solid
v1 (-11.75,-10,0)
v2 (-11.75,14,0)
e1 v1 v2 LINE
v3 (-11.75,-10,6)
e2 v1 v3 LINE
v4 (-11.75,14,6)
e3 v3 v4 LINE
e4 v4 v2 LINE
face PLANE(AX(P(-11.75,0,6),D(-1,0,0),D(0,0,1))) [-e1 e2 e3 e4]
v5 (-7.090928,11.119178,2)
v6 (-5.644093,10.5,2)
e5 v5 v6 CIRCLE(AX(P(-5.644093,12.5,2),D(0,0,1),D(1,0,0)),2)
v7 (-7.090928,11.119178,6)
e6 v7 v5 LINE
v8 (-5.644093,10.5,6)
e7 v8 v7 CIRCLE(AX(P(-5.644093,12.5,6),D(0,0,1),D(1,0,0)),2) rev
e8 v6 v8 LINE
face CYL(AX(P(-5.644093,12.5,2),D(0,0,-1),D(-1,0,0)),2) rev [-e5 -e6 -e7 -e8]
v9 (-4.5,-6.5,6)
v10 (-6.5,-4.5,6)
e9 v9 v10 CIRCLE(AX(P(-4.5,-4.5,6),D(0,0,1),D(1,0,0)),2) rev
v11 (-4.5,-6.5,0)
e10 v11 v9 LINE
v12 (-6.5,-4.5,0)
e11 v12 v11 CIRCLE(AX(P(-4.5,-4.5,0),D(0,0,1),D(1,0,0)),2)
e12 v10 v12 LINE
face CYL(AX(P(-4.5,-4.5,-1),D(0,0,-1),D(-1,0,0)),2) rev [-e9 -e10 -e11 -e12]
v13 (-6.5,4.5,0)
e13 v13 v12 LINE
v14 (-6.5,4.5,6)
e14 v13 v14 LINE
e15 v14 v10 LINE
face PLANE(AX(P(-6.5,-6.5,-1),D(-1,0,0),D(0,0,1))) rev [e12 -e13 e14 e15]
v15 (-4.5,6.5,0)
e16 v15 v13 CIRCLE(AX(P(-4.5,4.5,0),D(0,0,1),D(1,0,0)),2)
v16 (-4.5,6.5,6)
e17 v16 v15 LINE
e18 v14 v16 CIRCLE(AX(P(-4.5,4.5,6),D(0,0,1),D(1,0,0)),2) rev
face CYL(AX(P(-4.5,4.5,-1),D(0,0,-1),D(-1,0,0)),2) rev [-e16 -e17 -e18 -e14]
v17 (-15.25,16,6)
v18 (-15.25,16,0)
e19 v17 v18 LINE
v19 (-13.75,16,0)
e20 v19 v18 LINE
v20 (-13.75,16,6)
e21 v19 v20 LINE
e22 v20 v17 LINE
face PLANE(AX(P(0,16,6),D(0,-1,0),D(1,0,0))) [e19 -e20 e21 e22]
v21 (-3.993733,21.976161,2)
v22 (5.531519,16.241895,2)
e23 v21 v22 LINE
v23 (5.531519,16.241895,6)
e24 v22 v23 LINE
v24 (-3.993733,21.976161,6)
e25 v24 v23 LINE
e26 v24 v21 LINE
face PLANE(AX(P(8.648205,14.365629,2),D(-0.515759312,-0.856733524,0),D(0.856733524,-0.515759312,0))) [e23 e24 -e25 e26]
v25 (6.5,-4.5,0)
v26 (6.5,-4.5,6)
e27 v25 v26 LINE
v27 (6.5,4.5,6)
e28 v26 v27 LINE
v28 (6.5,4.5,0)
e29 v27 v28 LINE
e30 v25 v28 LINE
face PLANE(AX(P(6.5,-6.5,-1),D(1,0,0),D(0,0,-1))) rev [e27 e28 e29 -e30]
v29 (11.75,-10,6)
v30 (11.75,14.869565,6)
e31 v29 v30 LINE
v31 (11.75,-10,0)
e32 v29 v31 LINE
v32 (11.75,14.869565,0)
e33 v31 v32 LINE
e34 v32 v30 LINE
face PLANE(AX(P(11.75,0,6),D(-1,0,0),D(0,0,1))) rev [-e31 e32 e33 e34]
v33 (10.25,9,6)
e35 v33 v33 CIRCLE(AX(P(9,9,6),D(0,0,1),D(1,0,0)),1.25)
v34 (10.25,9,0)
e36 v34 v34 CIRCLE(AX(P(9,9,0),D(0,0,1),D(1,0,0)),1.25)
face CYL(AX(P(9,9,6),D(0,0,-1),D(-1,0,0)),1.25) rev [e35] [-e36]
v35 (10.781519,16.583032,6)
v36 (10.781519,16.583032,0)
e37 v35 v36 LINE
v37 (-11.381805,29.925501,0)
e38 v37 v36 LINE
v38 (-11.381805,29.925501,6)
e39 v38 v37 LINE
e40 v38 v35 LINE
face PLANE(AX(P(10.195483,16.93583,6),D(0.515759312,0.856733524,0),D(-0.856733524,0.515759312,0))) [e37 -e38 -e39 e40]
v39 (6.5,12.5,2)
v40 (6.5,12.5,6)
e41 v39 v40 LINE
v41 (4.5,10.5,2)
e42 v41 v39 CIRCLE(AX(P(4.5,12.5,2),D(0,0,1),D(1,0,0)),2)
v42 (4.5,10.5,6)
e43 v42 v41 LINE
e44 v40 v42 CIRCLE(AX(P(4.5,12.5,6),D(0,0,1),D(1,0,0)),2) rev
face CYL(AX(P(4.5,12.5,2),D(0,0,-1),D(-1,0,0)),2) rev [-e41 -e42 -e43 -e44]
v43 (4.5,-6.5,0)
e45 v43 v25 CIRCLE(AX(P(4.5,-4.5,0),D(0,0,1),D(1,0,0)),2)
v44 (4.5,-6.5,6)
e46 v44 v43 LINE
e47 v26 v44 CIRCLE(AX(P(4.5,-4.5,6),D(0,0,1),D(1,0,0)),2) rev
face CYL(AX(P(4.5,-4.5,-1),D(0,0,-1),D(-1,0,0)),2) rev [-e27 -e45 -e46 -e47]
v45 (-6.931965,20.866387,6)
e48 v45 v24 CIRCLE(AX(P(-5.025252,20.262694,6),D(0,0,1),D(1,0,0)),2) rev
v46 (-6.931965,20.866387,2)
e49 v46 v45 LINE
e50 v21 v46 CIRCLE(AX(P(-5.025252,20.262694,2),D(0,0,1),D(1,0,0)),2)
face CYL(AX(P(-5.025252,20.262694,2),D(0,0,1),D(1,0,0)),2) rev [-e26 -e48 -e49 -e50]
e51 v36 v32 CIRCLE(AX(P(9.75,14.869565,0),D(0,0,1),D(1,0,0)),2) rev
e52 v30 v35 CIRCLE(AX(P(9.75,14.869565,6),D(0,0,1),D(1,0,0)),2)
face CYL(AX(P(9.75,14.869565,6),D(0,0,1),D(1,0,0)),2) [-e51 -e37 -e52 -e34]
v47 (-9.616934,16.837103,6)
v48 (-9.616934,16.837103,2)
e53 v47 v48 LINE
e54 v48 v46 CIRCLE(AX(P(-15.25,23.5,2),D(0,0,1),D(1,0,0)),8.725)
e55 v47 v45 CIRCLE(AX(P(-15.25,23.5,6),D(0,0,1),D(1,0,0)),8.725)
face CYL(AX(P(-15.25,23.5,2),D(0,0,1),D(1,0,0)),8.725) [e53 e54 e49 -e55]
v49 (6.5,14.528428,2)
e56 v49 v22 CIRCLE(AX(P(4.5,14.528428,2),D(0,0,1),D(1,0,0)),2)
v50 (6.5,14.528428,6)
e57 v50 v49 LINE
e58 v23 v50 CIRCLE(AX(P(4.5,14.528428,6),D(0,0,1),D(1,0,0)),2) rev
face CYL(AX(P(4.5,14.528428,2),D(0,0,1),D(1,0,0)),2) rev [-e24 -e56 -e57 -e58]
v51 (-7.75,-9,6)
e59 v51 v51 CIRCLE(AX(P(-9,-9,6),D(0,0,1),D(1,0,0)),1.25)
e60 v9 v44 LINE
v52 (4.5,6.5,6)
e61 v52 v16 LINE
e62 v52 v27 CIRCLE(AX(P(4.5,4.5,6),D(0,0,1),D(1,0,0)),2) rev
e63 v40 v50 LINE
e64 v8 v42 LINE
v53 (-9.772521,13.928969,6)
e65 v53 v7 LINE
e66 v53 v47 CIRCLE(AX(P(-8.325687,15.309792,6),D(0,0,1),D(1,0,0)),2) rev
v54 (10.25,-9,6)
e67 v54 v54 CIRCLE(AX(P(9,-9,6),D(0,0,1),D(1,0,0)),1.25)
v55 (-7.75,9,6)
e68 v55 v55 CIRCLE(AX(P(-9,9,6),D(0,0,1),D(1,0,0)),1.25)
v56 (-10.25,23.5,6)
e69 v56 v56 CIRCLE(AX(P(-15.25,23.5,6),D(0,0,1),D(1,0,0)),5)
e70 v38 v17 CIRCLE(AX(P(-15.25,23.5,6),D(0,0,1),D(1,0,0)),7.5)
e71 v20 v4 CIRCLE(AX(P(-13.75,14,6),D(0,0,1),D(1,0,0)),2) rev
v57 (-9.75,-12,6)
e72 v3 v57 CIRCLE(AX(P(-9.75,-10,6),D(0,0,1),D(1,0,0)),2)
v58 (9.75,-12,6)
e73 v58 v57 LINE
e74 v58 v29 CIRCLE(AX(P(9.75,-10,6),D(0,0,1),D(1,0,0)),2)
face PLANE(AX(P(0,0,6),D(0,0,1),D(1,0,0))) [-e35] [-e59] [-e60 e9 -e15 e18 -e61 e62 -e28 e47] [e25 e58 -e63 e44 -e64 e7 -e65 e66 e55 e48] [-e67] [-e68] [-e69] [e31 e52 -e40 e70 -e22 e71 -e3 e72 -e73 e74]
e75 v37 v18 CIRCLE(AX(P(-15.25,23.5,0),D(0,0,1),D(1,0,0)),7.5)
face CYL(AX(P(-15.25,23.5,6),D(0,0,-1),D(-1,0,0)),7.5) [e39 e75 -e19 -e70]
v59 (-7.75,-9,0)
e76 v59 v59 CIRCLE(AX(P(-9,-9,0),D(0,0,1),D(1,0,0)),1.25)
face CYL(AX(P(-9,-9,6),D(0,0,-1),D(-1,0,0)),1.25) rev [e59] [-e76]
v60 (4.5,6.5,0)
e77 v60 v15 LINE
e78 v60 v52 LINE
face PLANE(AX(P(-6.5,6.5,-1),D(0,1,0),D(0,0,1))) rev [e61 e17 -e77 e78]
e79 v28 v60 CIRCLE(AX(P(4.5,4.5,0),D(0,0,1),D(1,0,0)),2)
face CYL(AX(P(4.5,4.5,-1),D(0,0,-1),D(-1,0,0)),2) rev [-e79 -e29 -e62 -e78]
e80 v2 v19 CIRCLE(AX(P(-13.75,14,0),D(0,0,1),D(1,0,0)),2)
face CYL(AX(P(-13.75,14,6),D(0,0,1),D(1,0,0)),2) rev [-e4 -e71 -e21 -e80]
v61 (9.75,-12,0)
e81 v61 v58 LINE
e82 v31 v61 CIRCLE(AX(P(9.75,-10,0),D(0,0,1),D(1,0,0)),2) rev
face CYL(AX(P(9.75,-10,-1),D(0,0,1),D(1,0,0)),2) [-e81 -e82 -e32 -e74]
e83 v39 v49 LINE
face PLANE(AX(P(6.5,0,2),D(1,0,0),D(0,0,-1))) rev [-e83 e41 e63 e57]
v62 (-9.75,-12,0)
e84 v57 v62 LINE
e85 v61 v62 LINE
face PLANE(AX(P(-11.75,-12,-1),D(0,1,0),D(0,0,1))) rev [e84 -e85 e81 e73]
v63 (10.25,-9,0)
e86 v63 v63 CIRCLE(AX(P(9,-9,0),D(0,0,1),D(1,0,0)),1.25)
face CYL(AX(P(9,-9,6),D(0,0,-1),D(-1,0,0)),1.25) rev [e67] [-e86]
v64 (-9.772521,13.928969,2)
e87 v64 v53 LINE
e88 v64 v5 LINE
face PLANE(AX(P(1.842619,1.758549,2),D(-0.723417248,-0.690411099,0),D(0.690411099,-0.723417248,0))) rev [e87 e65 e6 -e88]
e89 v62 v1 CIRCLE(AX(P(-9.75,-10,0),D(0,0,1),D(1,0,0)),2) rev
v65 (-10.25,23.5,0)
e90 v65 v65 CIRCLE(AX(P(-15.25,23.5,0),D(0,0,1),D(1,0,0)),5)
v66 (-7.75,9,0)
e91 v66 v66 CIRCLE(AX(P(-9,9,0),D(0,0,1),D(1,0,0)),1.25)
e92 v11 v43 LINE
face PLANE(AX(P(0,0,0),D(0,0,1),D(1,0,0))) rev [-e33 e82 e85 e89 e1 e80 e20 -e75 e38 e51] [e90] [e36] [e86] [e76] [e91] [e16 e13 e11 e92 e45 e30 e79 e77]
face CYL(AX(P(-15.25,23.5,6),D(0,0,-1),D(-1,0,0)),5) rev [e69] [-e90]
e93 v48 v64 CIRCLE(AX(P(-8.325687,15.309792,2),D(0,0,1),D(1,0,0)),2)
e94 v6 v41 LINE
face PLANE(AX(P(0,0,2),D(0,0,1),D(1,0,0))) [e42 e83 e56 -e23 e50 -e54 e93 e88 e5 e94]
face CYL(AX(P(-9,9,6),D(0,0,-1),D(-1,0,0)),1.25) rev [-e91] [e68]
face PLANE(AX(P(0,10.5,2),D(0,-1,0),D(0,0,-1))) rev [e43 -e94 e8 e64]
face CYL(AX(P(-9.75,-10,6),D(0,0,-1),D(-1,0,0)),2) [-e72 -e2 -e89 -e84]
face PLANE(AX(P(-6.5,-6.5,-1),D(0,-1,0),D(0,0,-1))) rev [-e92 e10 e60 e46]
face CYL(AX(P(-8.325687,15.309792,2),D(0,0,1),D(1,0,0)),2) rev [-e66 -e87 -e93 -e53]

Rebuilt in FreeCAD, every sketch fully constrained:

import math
import FreeCAD as App
import Part
import Sketcher

V = App.Vector
Q = App.Units.Quantity


def edges_at(feature, points):
    """Names of the edges that pass closest to the given points."""
    edges = feature.Shape.Edges
    near = lambda p: min(range(len(edges)), key=lambda i: edges[i].distToShape(Part.Vertex(*p))[0])
    return sorted({f"Edge{near(p) + 1}" for p in points})

doc = App.newDocument("Part")
body = doc.addObject("PartDesign::Body", "Body")

# Sketch on XY plane
sketch1 = doc.addObject("Sketcher::SketchObject", "Sketch")
body.addObject(sketch1)
sketch1.AttachmentSupport = (doc.XY_Plane, [""])
sketch1.MapMode = "FlatFace"
sketch1.addGeometry(Part.LineSegment(V(-15.2, 16, 0), V(-11.8, 16, 0)), False)
sketch1.addGeometry(Part.LineSegment(V(-11.8, 16, 0), V(-11.8, -16, 0)), False)
sketch1.addGeometry(Part.LineSegment(V(-11.8, -16, 0), V(11.8, -16, 0)), False)
sketch1.addGeometry(Part.LineSegment(V(11.8, -16, 0), V(11.8, 16, 0)), False)
sketch1.addGeometry(Part.LineSegment(V(11.8, 16, 0), V(-11.4, 29.9, 0)), False)
sketch1.addGeometry(Part.ArcOfCircle(Part.Circle(V(-15.2, 23.5, 0), V(0, 0, 1), 7.5), math.radians(59), math.radians(270)), False)
sketch1.addGeometry(Part.Circle(V(9, 9, 0), V(0, 0, 1), 1.2), False)
sketch1.addGeometry(Part.Circle(V(-9, -9, 0), V(0, 0, 1), 1.2), False)
sketch1.addGeometry(Part.Circle(V(9, -9, 0), V(0, 0, 1), 1.2), False)
sketch1.addGeometry(Part.Circle(V(-9, 9, 0), V(0, 0, 1), 1.2), False)
sketch1.addGeometry(Part.Circle(V(-15.2, 23.5, 0), V(0, 0, 1), 5), False)
sketch1.addConstraint(Sketcher.Constraint("Coincident", 0, 2, 1, 1))
sketch1.addConstraint(Sketcher.Constraint("Coincident", 1, 2, 2, 1))
sketch1.addConstraint(Sketcher.Constraint("Coincident", 2, 2, 3, 1))
sketch1.addConstraint(Sketcher.Constraint("Coincident", 3, 2, 4, 1))
sketch1.addConstraint(Sketcher.Constraint("Tangent", 4, 2, 5, 1))
sketch1.addConstraint(Sketcher.Constraint("Tangent", 5, 2, 0, 1))
sketch1.addConstraint(Sketcher.Constraint("Horizontal", 0))
sketch1.addConstraint(Sketcher.Constraint("Vertical", 1))
sketch1.addConstraint(Sketcher.Constraint("Horizontal", 2))
sketch1.addConstraint(Sketcher.Constraint("Vertical", 3))
sketch1.addConstraint(Sketcher.Constraint("Coincident", 10, 3, 5, 3))
sketch1.addConstraint(Sketcher.Constraint("Equal", 6, 7))
sketch1.addConstraint(Sketcher.Constraint("Equal", 7, 8))
sketch1.addConstraint(Sketcher.Constraint("Equal", 8, 9))
sketch1.addConstraint(Sketcher.Constraint("Symmetric", 6, 3, 7, 3, -1, 1))
sketch1.addConstraint(Sketcher.Constraint("Symmetric", 8, 3, 9, 3, -1, 1))
sketch1.addConstraint(Sketcher.Constraint("Symmetric", 0, 2, 2, 2, -1, 1))
sketch1.addConstraint(Sketcher.Constraint("Symmetric", 7, 3, 8, 3, -2))
sketch1.addConstraint(Sketcher.Constraint("Horizontal", 0, 2, 3, 2))
sketch1.addConstraint(Sketcher.Constraint("Diameter", 10, Q("10 mm")))
sketch1.addConstraint(Sketcher.Constraint("Diameter", 6, Q("2.5 mm")))
sketch1.addConstraint(Sketcher.Constraint("Radius", 5, Q("7.5 mm")))
sketch1.addConstraint(Sketcher.Constraint("DistanceY", 1, 2, 1, 1, Q("32 mm")))
sketch1.addConstraint(Sketcher.Constraint("Distance", 4, Q("27 mm")))
sketch1.addConstraint(Sketcher.Constraint("DistanceX", 0, 1, 0, 2, Q("3.5 mm")))
sketch1.addConstraint(Sketcher.Constraint("DistanceX", -1, 1, 6, 3, Q("9 mm")))
sketch1.addConstraint(Sketcher.Constraint("DistanceY", -1, 1, 6, 3, Q("9 mm")))
pad1 = doc.addObject("PartDesign::Pad", "Pad")
body.addObject(pad1)
pad1.Profile = sketch1
pad1.Length = 6

# Sketch on XY plane
sketch2 = doc.addObject("Sketcher::SketchObject", "Sketch001")
body.addObject(sketch2)
sketch2.AttachmentSupport = (doc.XY_Plane, [""])
sketch2.MapMode = "FlatFace"
sketch2.AttachmentOffset = App.Placement(V(0, 0, 6), App.Rotation())
sketch2.addGeometry(Part.LineSegment(V(-11.8, -12, 0), V(-11.8, -16, 0)), False)
sketch2.addGeometry(Part.LineSegment(V(-11.8, -16, 0), V(11.8, -16, 0)), False)
sketch2.addGeometry(Part.LineSegment(V(11.8, -16, 0), V(11.8, -12, 0)), False)
sketch2.addGeometry(Part.LineSegment(V(11.8, -12, 0), V(-11.8, -12, 0)), False)
sketch2.addGeometry(Part.LineSegment(V(-6.5, 6.5, 0), V(-6.5, -6.5, 0)), False)
sketch2.addGeometry(Part.LineSegment(V(-6.5, -6.5, 0), V(6.5, -6.5, 0)), False)
sketch2.addGeometry(Part.LineSegment(V(6.5, -6.5, 0), V(6.5, 6.5, 0)), False)
sketch2.addGeometry(Part.LineSegment(V(6.5, 6.5, 0), V(-6.5, 6.5, 0)), False)
sketch2.addConstraint(Sketcher.Constraint("Coincident", 0, 2, 1, 1))
sketch2.addConstraint(Sketcher.Constraint("Coincident", 1, 2, 2, 1))
sketch2.addConstraint(Sketcher.Constraint("Coincident", 2, 2, 3, 1))
sketch2.addConstraint(Sketcher.Constraint("Coincident", 3, 2, 0, 1))
sketch2.addConstraint(Sketcher.Constraint("Coincident", 4, 2, 5, 1))
sketch2.addConstraint(Sketcher.Constraint("Coincident", 5, 2, 6, 1))
sketch2.addConstraint(Sketcher.Constraint("Coincident", 6, 2, 7, 1))
sketch2.addConstraint(Sketcher.Constraint("Coincident", 7, 2, 4, 1))
sketch2.addConstraint(Sketcher.Constraint("Vertical", 0))
sketch2.addConstraint(Sketcher.Constraint("Horizontal", 1))
sketch2.addConstraint(Sketcher.Constraint("Vertical", 2))
sketch2.addConstraint(Sketcher.Constraint("Horizontal", 3))
sketch2.addConstraint(Sketcher.Constraint("Vertical", 4))
sketch2.addConstraint(Sketcher.Constraint("Horizontal", 5))
sketch2.addConstraint(Sketcher.Constraint("Vertical", 6))
sketch2.addConstraint(Sketcher.Constraint("Horizontal", 7))
sketch2.addConstraint(Sketcher.Constraint("Symmetric", 4, 2, 6, 2, -1, 1))
sketch2.addConstraint(Sketcher.Constraint("Equal", 7, 4))
sketch2.addConstraint(Sketcher.Constraint("DistanceX", 5, 1, 5, 2, Q("13 mm")))
sketch2.addConstraint(Sketcher.Constraint("DistanceY", 0, 2, 0, 1, Q("4 mm")))
sketch2.addConstraint(Sketcher.Constraint("DistanceX", 1, 1, 1, 2, Q("23.5 mm")))
sketch2.addConstraint(Sketcher.Constraint("DistanceY", 0, 2, -1, 1, Q("16 mm")))
sketch2.addConstraint(Sketcher.Constraint("DistanceX", 0, 2, -1, 1, Q("11.75 mm")))
pocket1 = doc.addObject("PartDesign::Pocket", "Pocket")
body.addObject(pocket1)
pocket1.Profile = sketch2
pocket1.Length = 7

# Sketch on XY plane
sketch3 = doc.addObject("Sketcher::SketchObject", "Sketch002")
body.addObject(sketch3)
sketch3.AttachmentSupport = (doc.XY_Plane, [""])
sketch3.MapMode = "FlatFace"
sketch3.AttachmentOffset = App.Placement(V(0, 0, 6), App.Rotation())
sketch3.addGeometry(Part.LineSegment(V(6, 16, 0), V(-7, 24, 0)), False)
sketch3.addGeometry(Part.ArcOfCircle(Part.Circle(V(-15, 23, 0), V(0, 0, 1), 9), math.radians(-64), math.radians(0)), False)
sketch3.addGeometry(Part.LineSegment(V(-11, 16, 0), V(-6, 10, 0)), False)
sketch3.addGeometry(Part.LineSegment(V(-6, 10, 0), V(6, 10, 0)), False)
sketch3.addGeometry(Part.LineSegment(V(6, 10, 0), V(6, 16, 0)), False)
sketch3.addConstraint(Sketcher.Constraint("Coincident", 0, 2, 1, 2))
sketch3.addConstraint(Sketcher.Constraint("Coincident", 1, 1, 2, 1))
sketch3.addConstraint(Sketcher.Constraint("Coincident", 2, 2, 3, 1))
sketch3.addConstraint(Sketcher.Constraint("Coincident", 3, 2, 4, 1))
sketch3.addConstraint(Sketcher.Constraint("Coincident", 4, 2, 0, 1))
sketch3.addConstraint(Sketcher.Constraint("Horizontal", 3))
sketch3.addConstraint(Sketcher.Constraint("Vertical", 4))
sketch3.addConstraint(Sketcher.Constraint("Horizontal", 1, 3, 0, 2))
sketch3.addConstraint(Sketcher.Constraint("Horizontal", 1, 1, 4, 2))
sketch3.addConstraint(Sketcher.Constraint("DistanceX", 3, 1, 3, 2, Q("13 mm")))
sketch3.addConstraint(Sketcher.Constraint("Radius", 1, Q("8.725 mm")))
sketch3.addConstraint(Sketcher.Constraint("DistanceY", 2, 2, 0, 2, Q("13 mm")))
sketch3.addConstraint(Sketcher.Constraint("DistanceY", -1, 1, 1, 3, Q("23.5 mm")))
sketch3.addConstraint(Sketcher.Constraint("DistanceX", 2, 2, -1, 1, Q("6.5 mm")))
sketch3.addConstraint(Sketcher.Constraint("DistanceX", 1, 3, -1, 1, Q("15.25 mm")))
sketch3.addConstraint(Sketcher.Constraint("Distance", 2, Q("7.131241 mm")))
pocket2 = doc.addObject("PartDesign::Pocket", "Pocket001")
body.addObject(pocket2)
pocket2.Profile = sketch3
pocket2.Length = 4
doc.recompute()

fillet = doc.addObject("PartDesign::Fillet", "Fillet")
body.addObject(fillet)
fillet.Base = (pocket2, edges_at(pocket2, [
    (11.75, 16, 3),
    (-11.75, 16, 3),
    (-11.75, -12, 3),
    (11.75, -12, 3),
    (6.5, 6.5, 3),
    (6.5, -6.5, 3),
    (-6.5, -6.5, 3),
    (-6.5, 6.5, 3),
    (-11.423, 15.659, 4),
    (-6.525, 23.5, 4),
    (6.5, 15.659, 4),
    (6.5, 10.5, 4),
    (-6.5, 10.5, 4),
]))
fillet.Radius = 2

doc.recompute()
